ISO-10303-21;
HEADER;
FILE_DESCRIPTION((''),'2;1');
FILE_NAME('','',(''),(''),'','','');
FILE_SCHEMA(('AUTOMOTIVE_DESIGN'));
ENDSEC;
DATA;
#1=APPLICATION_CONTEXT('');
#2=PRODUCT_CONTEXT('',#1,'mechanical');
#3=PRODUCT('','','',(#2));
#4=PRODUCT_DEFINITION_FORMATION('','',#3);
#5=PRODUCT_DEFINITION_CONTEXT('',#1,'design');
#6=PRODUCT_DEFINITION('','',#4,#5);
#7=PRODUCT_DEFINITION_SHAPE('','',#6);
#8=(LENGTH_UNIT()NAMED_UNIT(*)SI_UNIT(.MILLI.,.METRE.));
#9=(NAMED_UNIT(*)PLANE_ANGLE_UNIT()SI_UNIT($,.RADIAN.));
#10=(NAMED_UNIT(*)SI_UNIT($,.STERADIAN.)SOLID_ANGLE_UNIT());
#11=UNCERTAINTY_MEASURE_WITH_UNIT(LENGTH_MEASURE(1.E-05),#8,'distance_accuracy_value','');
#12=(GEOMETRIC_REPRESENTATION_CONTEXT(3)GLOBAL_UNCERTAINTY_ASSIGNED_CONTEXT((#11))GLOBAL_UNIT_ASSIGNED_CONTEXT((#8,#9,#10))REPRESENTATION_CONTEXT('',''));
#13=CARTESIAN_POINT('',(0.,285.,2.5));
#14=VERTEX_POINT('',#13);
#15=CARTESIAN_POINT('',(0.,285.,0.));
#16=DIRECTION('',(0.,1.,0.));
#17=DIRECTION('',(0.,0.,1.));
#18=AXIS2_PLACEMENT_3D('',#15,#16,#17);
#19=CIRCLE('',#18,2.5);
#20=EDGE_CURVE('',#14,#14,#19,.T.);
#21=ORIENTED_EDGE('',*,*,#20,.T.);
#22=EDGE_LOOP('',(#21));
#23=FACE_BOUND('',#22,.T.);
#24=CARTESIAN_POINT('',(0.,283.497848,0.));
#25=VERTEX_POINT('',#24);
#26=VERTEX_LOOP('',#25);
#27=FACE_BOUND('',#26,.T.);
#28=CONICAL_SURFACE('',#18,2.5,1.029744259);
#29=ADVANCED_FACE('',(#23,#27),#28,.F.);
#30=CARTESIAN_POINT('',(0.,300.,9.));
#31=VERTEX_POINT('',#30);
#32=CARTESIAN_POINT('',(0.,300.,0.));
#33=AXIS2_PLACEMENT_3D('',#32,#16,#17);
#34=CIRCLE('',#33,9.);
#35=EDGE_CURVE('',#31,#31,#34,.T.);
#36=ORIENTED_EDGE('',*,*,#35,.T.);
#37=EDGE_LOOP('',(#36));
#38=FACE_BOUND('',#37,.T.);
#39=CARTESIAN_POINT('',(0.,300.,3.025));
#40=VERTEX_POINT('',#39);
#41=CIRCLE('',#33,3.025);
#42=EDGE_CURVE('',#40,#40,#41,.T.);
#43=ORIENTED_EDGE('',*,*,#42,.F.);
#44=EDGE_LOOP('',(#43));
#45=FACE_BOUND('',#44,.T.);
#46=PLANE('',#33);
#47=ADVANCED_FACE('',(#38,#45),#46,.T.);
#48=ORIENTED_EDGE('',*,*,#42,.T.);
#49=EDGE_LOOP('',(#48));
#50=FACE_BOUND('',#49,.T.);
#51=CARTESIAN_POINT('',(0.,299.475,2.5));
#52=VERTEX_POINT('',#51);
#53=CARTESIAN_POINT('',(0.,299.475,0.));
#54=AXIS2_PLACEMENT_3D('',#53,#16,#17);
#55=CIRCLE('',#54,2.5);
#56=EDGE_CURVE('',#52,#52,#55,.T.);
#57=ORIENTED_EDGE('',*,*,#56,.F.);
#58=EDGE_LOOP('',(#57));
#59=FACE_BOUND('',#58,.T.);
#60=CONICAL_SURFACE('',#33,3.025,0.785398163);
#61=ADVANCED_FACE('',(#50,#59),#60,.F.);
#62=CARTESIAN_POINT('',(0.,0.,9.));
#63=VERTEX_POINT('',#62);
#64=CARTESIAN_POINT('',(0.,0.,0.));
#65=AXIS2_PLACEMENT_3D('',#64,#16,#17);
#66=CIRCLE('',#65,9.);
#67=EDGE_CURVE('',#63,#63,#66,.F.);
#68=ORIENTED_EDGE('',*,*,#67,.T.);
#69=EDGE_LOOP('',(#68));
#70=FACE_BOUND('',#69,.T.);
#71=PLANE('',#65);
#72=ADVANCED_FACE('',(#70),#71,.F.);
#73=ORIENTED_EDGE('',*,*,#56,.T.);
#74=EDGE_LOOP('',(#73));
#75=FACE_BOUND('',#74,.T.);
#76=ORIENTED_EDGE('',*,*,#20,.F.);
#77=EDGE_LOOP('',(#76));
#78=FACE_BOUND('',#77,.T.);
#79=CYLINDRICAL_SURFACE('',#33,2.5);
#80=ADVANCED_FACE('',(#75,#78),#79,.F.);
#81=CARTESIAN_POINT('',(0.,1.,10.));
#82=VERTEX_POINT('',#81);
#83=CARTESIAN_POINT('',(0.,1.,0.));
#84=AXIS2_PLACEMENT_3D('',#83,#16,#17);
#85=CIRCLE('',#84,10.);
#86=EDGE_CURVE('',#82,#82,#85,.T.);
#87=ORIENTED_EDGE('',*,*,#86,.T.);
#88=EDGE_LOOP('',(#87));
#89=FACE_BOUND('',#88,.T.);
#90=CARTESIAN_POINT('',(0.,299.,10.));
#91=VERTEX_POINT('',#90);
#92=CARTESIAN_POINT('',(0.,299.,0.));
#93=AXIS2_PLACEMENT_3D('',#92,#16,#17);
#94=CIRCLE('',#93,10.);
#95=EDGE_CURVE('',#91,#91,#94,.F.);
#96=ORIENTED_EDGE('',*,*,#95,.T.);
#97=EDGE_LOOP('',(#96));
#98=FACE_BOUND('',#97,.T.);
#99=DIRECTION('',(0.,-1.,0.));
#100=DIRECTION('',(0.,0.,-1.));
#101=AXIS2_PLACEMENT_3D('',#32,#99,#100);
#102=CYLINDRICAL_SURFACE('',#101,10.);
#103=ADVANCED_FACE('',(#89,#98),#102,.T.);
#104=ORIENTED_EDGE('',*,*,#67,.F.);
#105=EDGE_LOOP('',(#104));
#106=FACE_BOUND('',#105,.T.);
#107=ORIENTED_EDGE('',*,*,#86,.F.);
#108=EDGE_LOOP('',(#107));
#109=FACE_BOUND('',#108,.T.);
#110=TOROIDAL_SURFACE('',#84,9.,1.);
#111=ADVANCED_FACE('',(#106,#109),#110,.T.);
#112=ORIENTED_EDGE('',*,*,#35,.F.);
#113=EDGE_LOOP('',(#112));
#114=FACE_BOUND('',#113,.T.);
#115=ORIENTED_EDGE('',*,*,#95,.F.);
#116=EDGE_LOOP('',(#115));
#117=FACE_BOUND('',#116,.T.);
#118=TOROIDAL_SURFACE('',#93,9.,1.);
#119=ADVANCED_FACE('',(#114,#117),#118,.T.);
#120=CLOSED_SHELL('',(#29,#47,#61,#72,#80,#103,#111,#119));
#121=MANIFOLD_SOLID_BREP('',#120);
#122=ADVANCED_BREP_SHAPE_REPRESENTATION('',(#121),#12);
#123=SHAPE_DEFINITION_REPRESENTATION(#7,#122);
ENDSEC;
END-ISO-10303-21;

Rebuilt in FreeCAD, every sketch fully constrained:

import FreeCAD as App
import Part
import Sketcher
from FreeCAD import Vector


def edges_at(feature, points):
    """Names of the edges that pass closest to the given points."""
    edges = feature.Shape.Edges
    near = lambda p: min(range(len(edges)), key=lambda i: edges[i].distToShape(Part.Vertex(*p))[0])
    return sorted({f"Edge{near(p) + 1}" for p in points})

doc = App.newDocument("Part")
params = doc.addObject("Spreadsheet::Sheet", "Params")
for row, (alias, value) in enumerate([
    ("sketch1_diameter", "20 mm"),
    ("pad1_length", "300 mm"),
    ("sketch2_diameter", "5 mm"),
    ("hole_diameter", "5 mm"),
    ("hole_depth", "15 mm"),
    ("hole_csink_diameter", "6.05 mm"),
    ("fillet_radius", "1 mm"),
    ("fillet2_radius", "1 mm"),
], start=1):
    params.set(f"A{row}", alias)
    params.set(f"B{row}", "=" + value)
    params.setAlias(f"B{row}", alias)

body = doc.addObject("PartDesign::Body", "Body")

# Sketch on XZ plane
sketch1 = body.newObject("Sketcher::SketchObject", "Sketch")
sketch1.AttachmentSupport = (doc.getObject("XZ_Plane"), [""])
sketch1.MapMode = "FlatFace"
sketch1.addGeometry(Part.Circle(Vector(0, 0, 0), Vector(0, 0, 1), 10), False)
sketch1.addConstraint(Sketcher.Constraint("Coincident", 0, 3, -1, 1))
sketch1.addConstraint(Sketcher.Constraint("Diameter", 0, 20.0))
sketch1.setExpression("Constraints[1]", "Params.sketch1_diameter")
pad1 = body.newObject("PartDesign::Pad", "Pad")
pad1.Profile = sketch1
pad1.setExpression("Length", "Params.pad1_length")
pad1.Reversed = True

# Sketch on XZ plane
sketch2 = body.newObject("Sketcher::SketchObject", "Sketch001")
sketch2.AttachmentSupport = (doc.getObject("XZ_Plane"), [""])
sketch2.MapMode = "FlatFace"
sketch2.AttachmentOffset = App.Placement(Vector(0, 0, -300), App.Rotation())
sketch2.addGeometry(Part.Circle(Vector(0, 0, 0), Vector(0, 0, 1), 2.5), False)
sketch2.addConstraint(Sketcher.Constraint("Coincident", 0, 3, -1, 1))
sketch2.addConstraint(Sketcher.Constraint("Diameter", 0, 5.0))
sketch2.setExpression("Constraints[1]", "Params.sketch2_diameter")
doc.recompute()
hole = body.newObject("PartDesign::Hole", "Hole")
hole.Profile = sketch2
hole.ThreadType = "None"
hole.setExpression("Diameter", "Params.hole_diameter")
hole.DepthType = "Dimension"
hole.setExpression("Depth", "Params.hole_depth")
hole.DrillPoint = "Angled"
hole.DrillPointAngle = 118
hole.HoleCutType = "Countersink"
hole.setExpression("HoleCutDiameter", "Params.hole_csink_diameter")
hole.HoleCutCountersinkAngle = 90
hole.Reversed = True
doc.recompute()

fillet = body.newObject("PartDesign::Fillet", "Fillet")
fillet.Base = (hole, edges_at(hole, [(0, 300, -10)]))
fillet.setExpression("Radius", "Params.fillet_radius")
doc.recompute()

fillet2 = body.newObject("PartDesign::Fillet", "Fillet001")
fillet2.Base = (fillet, edges_at(fillet, [(0, 0, -10)]))
fillet2.setExpression("Radius", "Params.fillet2_radius")

doc.recompute()
